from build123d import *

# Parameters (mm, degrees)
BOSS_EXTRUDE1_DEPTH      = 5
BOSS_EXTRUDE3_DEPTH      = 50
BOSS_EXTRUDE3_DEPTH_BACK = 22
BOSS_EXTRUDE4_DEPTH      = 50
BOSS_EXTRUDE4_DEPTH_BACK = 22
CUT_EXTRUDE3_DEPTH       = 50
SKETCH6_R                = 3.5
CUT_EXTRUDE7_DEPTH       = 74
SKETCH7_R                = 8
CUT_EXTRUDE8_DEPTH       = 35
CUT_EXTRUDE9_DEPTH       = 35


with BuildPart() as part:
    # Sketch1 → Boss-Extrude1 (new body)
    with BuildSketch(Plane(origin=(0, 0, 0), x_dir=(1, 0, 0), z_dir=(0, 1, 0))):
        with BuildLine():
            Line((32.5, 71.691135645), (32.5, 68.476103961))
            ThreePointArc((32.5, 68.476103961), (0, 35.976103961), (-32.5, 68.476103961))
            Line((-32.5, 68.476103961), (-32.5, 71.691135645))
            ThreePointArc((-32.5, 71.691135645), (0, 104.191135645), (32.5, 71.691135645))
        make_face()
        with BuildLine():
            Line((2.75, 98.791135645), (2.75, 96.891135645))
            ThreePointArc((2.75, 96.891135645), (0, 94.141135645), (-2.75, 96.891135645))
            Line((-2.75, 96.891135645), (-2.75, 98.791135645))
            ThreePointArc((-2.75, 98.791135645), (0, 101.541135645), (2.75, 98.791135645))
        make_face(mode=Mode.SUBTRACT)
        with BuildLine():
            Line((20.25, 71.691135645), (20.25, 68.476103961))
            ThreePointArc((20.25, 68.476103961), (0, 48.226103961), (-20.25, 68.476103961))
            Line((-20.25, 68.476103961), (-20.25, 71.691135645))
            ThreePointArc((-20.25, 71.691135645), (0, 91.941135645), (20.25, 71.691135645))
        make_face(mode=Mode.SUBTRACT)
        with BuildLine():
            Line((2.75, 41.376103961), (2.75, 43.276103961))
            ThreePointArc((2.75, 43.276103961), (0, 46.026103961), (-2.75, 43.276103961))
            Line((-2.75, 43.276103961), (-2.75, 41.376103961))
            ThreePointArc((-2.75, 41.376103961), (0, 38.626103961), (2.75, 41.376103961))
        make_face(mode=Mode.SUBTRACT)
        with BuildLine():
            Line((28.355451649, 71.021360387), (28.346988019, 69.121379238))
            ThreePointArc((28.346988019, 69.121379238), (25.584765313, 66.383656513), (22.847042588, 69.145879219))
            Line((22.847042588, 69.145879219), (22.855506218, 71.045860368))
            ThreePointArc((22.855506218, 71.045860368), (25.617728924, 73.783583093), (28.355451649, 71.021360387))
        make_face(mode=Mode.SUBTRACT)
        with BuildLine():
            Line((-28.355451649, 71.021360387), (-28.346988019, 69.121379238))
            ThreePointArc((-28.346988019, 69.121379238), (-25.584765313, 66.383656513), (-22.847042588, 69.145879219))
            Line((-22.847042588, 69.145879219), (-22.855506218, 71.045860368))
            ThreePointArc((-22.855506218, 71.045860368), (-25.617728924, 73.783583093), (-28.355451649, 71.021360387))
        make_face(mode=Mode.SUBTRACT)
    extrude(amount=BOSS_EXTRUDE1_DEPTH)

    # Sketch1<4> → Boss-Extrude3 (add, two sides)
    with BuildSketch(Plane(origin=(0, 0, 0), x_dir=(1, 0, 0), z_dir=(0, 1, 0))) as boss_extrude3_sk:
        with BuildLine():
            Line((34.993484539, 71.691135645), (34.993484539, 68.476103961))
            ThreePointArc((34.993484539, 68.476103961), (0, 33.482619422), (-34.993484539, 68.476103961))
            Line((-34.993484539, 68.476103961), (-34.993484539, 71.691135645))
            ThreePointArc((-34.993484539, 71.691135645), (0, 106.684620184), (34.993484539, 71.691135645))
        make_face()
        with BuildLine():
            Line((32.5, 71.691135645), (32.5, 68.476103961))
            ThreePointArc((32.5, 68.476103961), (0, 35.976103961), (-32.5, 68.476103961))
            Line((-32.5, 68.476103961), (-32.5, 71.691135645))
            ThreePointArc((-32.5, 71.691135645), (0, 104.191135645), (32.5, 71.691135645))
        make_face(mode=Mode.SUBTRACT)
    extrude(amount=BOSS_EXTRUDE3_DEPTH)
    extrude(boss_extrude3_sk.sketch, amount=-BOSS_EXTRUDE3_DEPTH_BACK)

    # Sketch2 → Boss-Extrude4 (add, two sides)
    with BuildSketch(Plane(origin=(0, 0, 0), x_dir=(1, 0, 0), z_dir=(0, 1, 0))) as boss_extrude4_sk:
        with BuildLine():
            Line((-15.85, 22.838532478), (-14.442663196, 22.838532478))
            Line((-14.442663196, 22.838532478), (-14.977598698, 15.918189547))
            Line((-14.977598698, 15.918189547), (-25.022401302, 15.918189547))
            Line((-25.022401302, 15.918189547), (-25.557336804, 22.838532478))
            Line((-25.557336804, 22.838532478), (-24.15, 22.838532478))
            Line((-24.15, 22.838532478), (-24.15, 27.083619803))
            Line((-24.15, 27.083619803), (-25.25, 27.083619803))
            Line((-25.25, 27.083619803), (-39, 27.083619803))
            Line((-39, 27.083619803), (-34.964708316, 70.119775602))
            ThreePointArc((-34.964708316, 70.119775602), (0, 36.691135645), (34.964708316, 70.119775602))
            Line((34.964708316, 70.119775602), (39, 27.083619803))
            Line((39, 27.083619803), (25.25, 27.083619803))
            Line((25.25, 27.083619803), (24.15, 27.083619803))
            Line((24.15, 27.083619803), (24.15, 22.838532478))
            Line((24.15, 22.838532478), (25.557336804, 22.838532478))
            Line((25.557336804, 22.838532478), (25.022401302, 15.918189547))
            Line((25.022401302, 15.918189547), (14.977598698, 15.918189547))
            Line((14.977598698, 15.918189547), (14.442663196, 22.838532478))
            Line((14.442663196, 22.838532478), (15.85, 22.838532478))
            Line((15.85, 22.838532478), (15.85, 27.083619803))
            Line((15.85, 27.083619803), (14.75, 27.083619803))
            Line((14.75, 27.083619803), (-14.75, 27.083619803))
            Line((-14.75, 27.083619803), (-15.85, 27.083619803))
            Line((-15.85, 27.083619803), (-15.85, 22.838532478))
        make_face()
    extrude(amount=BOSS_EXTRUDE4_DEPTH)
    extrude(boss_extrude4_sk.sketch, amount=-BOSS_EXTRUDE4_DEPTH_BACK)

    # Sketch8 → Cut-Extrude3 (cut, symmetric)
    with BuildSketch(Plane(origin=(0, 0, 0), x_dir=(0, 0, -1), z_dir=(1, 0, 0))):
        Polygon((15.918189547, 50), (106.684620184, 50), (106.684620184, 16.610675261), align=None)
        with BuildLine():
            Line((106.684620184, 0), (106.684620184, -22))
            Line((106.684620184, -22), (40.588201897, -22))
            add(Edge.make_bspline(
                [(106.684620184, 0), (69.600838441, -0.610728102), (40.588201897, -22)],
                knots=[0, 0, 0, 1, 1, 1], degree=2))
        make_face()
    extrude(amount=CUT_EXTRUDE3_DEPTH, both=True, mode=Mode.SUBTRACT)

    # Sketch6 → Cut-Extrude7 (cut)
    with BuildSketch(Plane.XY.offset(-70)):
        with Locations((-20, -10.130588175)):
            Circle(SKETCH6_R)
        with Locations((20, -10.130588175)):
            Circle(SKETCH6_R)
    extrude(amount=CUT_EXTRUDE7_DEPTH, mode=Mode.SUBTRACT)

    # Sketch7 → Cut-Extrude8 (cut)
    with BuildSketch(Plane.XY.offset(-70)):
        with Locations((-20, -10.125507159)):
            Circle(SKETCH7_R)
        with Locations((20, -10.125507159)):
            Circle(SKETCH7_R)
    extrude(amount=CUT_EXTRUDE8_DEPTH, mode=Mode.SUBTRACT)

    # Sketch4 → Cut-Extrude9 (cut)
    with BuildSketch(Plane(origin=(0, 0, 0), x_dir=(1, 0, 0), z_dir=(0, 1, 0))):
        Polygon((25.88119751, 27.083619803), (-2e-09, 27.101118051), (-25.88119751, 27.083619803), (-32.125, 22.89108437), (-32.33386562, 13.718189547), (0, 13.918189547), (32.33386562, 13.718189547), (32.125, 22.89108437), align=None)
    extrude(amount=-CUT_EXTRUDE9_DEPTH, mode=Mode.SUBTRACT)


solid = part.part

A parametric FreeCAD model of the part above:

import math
import FreeCAD as App
import Part
import Sketcher

V = App.Vector
Q = App.Units.Quantity

doc = App.newDocument("Part")
body = doc.addObject("PartDesign::Body", "Body")

sketch1 = body.newObject("Sketcher::SketchObject", "Sketch")
sketch1.AttachmentSupport = (doc.getObject("XZ_Plane"), [""])
sketch1.MapMode = "FlatFace"
sketch1.addGeometry([
    Part.LineSegment(V(32.5, -68.5, 0), V(32.5, -71.7, 0)),
    Part.ArcOfCircle(Part.Circle(V(0, -71.7, 0), V(0, 0, 1), 32.5), math.radians(180), math.radians(360)),
    Part.LineSegment(V(-32.5, -71.7, 0), V(-32.5, -68.5, 0)),
    Part.ArcOfCircle(Part.Circle(V(0, -68.5, 0), V(0, 0, 1), 32.5), math.radians(0), math.radians(180)),
    Part.ArcOfCircle(Part.Circle(V(0, -41.4, 0), V(0, 0, 1), 2.8), math.radians(0), math.radians(180)),
    Part.LineSegment(V(-2.8, -41.4, 0), V(-2.8, -43.3, 0)),
    Part.ArcOfCircle(Part.Circle(V(0, -43.3, 0), V(0, 0, 1), 2.8), math.radians(180), math.radians(360)),
    Part.LineSegment(V(2.8, -43.3, 0), V(2.8, -41.4, 0)),
    Part.LineSegment(V(28.4, -71, 0), V(28.3, -69.1, 0)),
    Part.ArcOfCircle(Part.Circle(V(25.6, -69.1, 0), V(0, 0, 1), 2.8), math.radians(0), math.radians(180)),
    Part.LineSegment(V(22.8, -69.1, 0), V(22.9, -71, 0)),
    Part.ArcOfCircle(Part.Circle(V(25.6, -71, 0), V(0, 0, 1), 2.8), math.radians(-180), math.radians(0)),
    Part.LineSegment(V(20.2, -71.7, 0), V(20.2, -68.5, 0)),
    Part.ArcOfCircle(Part.Circle(V(0, -68.5, 0), V(0, 0, 1), 20.2), math.radians(0), math.radians(180)),
    Part.LineSegment(V(-20.2, -68.5, 0), V(-20.2, -71.7, 0)),
    Part.ArcOfCircle(Part.Circle(V(0, -71.7, 0), V(0, 0, 1), 20.2), math.radians(180), math.radians(360)),
    Part.ArcOfCircle(Part.Circle(V(-25.6, -71, 0), V(0, 0, 1), 2.8), math.radians(180), math.radians(360)),
    Part.LineSegment(V(-22.9, -71, 0), V(-22.8, -69.1, 0)),
    Part.ArcOfCircle(Part.Circle(V(-25.6, -69.1, 0), V(0, 0, 1), 2.8), math.radians(0), math.radians(180)),
    Part.LineSegment(V(-28.3, -69.1, 0), V(-28.4, -71, 0)),
    Part.LineSegment(V(2.8, -98.8, 0), V(2.8, -96.9, 0)),
    Part.ArcOfCircle(Part.Circle(V(0, -96.9, 0), V(0, 0, 1), 2.8), math.radians(0), math.radians(180)),
    Part.LineSegment(V(-2.8, -96.9, 0), V(-2.8, -98.8, 0)),
    Part.ArcOfCircle(Part.Circle(V(0, -98.8, 0), V(0, 0, 1), 2.8), math.radians(180), math.radians(360)),
], False)
sketch1.addConstraint([
    Sketcher.Constraint("Tangent", 0, 2, 1, 2),
    Sketcher.Constraint("Tangent", 1, 1, 2, 1),
    Sketcher.Constraint("Tangent", 2, 2, 3, 2),
    Sketcher.Constraint("Tangent", 3, 1, 0, 1),
    Sketcher.Constraint("Tangent", 4, 2, 5, 1),
    Sketcher.Constraint("Tangent", 5, 2, 6, 1),
    Sketcher.Constraint("Tangent", 6, 2, 7, 1),
    Sketcher.Constraint("Tangent", 7, 2, 4, 1),
    Sketcher.Constraint("Tangent", 8, 2, 9, 1),
    Sketcher.Constraint("Tangent", 9, 2, 10, 1),
    Sketcher.Constraint("Tangent", 10, 2, 11, 1),
    Sketcher.Constraint("Tangent", 11, 2, 8, 1),
    Sketcher.Constraint("Tangent", 12, 2, 13, 1),
    Sketcher.Constraint("Tangent", 13, 2, 14, 1),
    Sketcher.Constraint("Tangent", 14, 2, 15, 1),
    Sketcher.Constraint("Tangent", 15, 2, 12, 1),
    Sketcher.Constraint("Tangent", 16, 2, 17, 1),
    Sketcher.Constraint("Tangent", 17, 2, 18, 1),
    Sketcher.Constraint("Tangent", 18, 2, 19, 1),
    Sketcher.Constraint("Tangent", 19, 2, 16, 1),
    Sketcher.Constraint("Tangent", 20, 2, 21, 1),
    Sketcher.Constraint("Tangent", 21, 2, 22, 1),
    Sketcher.Constraint("Tangent", 22, 2, 23, 1),
    Sketcher.Constraint("Tangent", 23, 2, 20, 1),
    Sketcher.Constraint("Vertical", 0),
    Sketcher.Constraint("Vertical", 2),
    Sketcher.Constraint("Vertical", 5),
    Sketcher.Constraint("Vertical", 7),
    Sketcher.Constraint("Vertical", 12),
    Sketcher.Constraint("Vertical", 14),
    Sketcher.Constraint("Vertical", 20),
    Sketcher.Constraint("Vertical", 22),
    Sketcher.Constraint("Coincident", 13, 3, 3, 3),
    Sketcher.Constraint("Equal", 6, 9),
    Sketcher.Constraint("Equal", 9, 11),
    Sketcher.Constraint("Equal", 11, 16),
    Sketcher.Constraint("Equal", 16, 18),
    Sketcher.Constraint("Equal", 18, 21),
    Sketcher.Constraint("Symmetric", 11, 3, 16, 3, -2),
    Sketcher.Constraint("Symmetric", 9, 3, 18, 3, -2),
    Sketcher.Constraint("PointOnObject", 1, 3, -2),
    Sketcher.Constraint("PointOnObject", 4, 3, -2),
    Sketcher.Constraint("PointOnObject", 21, 3, -2),
    Sketcher.Constraint("Horizontal", 15, 3, 0, 2),
    Sketcher.Constraint("Equal", 7, 20),
    Sketcher.Constraint("Radius", 1, Q("32.5 mm")),
    Sketcher.Constraint("Radius", 4, Q("2.75 mm")),
    Sketcher.Constraint("Radius", 13, Q("20.25 mm")),
    Sketcher.Constraint("DistanceY", 5, 2, 5, 1, Q("1.9 mm")),
    Sketcher.Constraint("Distance", 8, Q("1.9 mm")),
    Sketcher.Constraint("DistanceY", 3, 3, 4, 3, Q("27.1 mm")),
    Sketcher.Constraint("DistanceY", 21, 3, 1, 3, Q("25.2 mm")),
    Sketcher.Constraint("DistanceY", 0, 2, 0, 1, Q("3.215032 mm")),
    Sketcher.Constraint("DistanceY", 9, 2, 8, 2, Q("0.0245 mm")),
    Sketcher.Constraint("DistanceY", 9, 3, -1, 1, Q("69.133629 mm")),
    Sketcher.Constraint("DistanceX", -1, 1, 11, 3, Q("25.605479 mm")),
    Sketcher.Constraint("DistanceY", 1, 3, -1, 1, Q("71.691136 mm")),
])
pad1 = body.newObject("PartDesign::Pad", "Pad")
pad1.Profile = sketch1
pad1.Length = 5
pad1.Reversed = True

sketch2 = body.newObject("Sketcher::SketchObject", "Sketch001")
sketch2.AttachmentSupport = (doc.getObject("XZ_Plane"), [""])
sketch2.MapMode = "FlatFace"
sketch2.addGeometry([
    Part.LineSegment(V(35, -68.5, 0), V(35, -71.7, 0)),
    Part.ArcOfCircle(Part.Circle(V(0, -71.7, 0), V(0, 0, 1), 35), math.radians(180), math.radians(360)),
    Part.LineSegment(V(-35, -71.7, 0), V(-35, -68.5, 0)),
    Part.ArcOfCircle(Part.Circle(V(0, -68.5, 0), V(0, 0, 1), 35), math.radians(0), math.radians(180)),
    Part.LineSegment(V(32.5, -71.7, 0), V(32.5, -68.5, 0)),
    Part.ArcOfCircle(Part.Circle(V(0, -68.5, 0), V(0, 0, 1), 32.5), math.radians(0), math.radians(180)),
    Part.LineSegment(V(-32.5, -68.5, 0), V(-32.5, -71.7, 0)),
    Part.ArcOfCircle(Part.Circle(V(0, -71.7, 0), V(0, 0, 1), 32.5), math.radians(180), math.radians(360)),
], False)
sketch2.addConstraint([
    Sketcher.Constraint("Tangent", 0, 2, 1, 2),
    Sketcher.Constraint("Tangent", 1, 1, 2, 1),
    Sketcher.Constraint("Tangent", 2, 2, 3, 2),
    Sketcher.Constraint("Tangent", 3, 1, 0, 1),
    Sketcher.Constraint("Tangent", 4, 2, 5, 1),
    Sketcher.Constraint("Tangent", 5, 2, 6, 1),
    Sketcher.Constraint("Tangent", 6, 2, 7, 1),
    Sketcher.Constraint("Tangent", 7, 2, 4, 1),
    Sketcher.Constraint("Vertical", 0),
    Sketcher.Constraint("Vertical", 2),
    Sketcher.Constraint("Vertical", 4),
    Sketcher.Constraint("Vertical", 6),
    Sketcher.Constraint("Coincident", 5, 3, 3, 3),
    Sketcher.Constraint("PointOnObject", 1, 3, -2),
    Sketcher.Constraint("Horizontal", 7, 3, 0, 2),
    Sketcher.Constraint("Radius", 5, Q("32.5 mm")),
    Sketcher.Constraint("Radius", 1, Q("34.993485 mm")),
    Sketcher.Constraint("DistanceY", 0, 2, 0, 1, Q("3.215032 mm")),
    Sketcher.Constraint("DistanceY", 1, 3, -1, 1, Q("71.691136 mm")),
])
pad2 = body.newObject("PartDesign::Pad", "Pad001")
pad2.Profile = sketch2
pad2.Type = "TwoLengths"
pad2.Length = 50
pad2.Length2 = 22
pad2.Reversed = True

sketch3 = body.newObject("Sketcher::SketchObject", "Sketch002")
sketch3.AttachmentSupport = (doc.getObject("XZ_Plane"), [""])
sketch3.MapMode = "FlatFace"
sketch3.addGeometry([
    Part.LineSegment(V(-14.4, -22.8, 0), V(-15.8, -22.8, 0)),
    Part.LineSegment(V(-15.8, -22.8, 0), V(-15.8, -27.1, 0)),
    Part.LineSegment(V(-15.8, -27.1, 0), V(15.8, -27.1, 0)),
    Part.LineSegment(V(15.8, -27.1, 0), V(15.8, -22.8, 0)),
    Part.LineSegment(V(15.8, -22.8, 0), V(14.4, -22.8, 0)),
    Part.LineSegment(V(14.4, -22.8, 0), V(15, -15.9, 0)),
    Part.LineSegment(V(15, -15.9, 0), V(25, -15.9, 0)),
    Part.LineSegment(V(25, -15.9, 0), V(25.6, -22.8, 0)),
    Part.LineSegment(V(25.6, -22.8, 0), V(24.1, -22.8, 0)),
    Part.LineSegment(V(24.1, -22.8, 0), V(24.1, -27.1, 0)),
    Part.LineSegment(V(24.1, -27.1, 0), V(39, -27.1, 0)),
    Part.LineSegment(V(39, -27.1, 0), V(35, -70.1, 0)),
    Part.ArcOfCircle(Part.Circle(V(0, -71.7, 0), V(0, 0, 1), 35), math.radians(3), math.radians(177)),
    Part.LineSegment(V(-35, -70.1, 0), V(-39, -27.1, 0)),
    Part.LineSegment(V(-39, -27.1, 0), V(-24.1, -27.1, 0)),
    Part.LineSegment(V(-24.1, -27.1, 0), V(-24.1, -22.8, 0)),
    Part.LineSegment(V(-24.1, -22.8, 0), V(-25.6, -22.8, 0)),
    Part.LineSegment(V(-25.6, -22.8, 0), V(-25, -15.9, 0)),
    Part.LineSegment(V(-25, -15.9, 0), V(-15, -15.9, 0)),
    Part.LineSegment(V(-15, -15.9, 0), V(-14.4, -22.8, 0)),
], False)
sketch3.addConstraint([
    Sketcher.Constraint("Coincident", 0, 2, 1, 1),
    Sketcher.Constraint("Coincident", 1, 2, 2, 1),
    Sketcher.Constraint("Coincident", 2, 2, 3, 1),
    Sketcher.Constraint("Coincident", 3, 2, 4, 1),
    Sketcher.Constraint("Coincident", 4, 2, 5, 1),
    Sketcher.Constraint("Coincident", 5, 2, 6, 1),
    Sketcher.Constraint("Coincident", 6, 2, 7, 1),
    Sketcher.Constraint("Coincident", 7, 2, 8, 1),
    Sketcher.Constraint("Coincident", 8, 2, 9, 1),
    Sketcher.Constraint("Coincident", 9, 2, 10, 1),
    Sketcher.Constraint("Coincident", 10, 2, 11, 1),
    Sketcher.Constraint("Coincident", 11, 2, 12, 1),
    Sketcher.Constraint("Coincident", 12, 2, 13, 1),
    Sketcher.Constraint("Coincident", 13, 2, 14, 1),
    Sketcher.Constraint("Coincident", 14, 2, 15, 1),
    Sketcher.Constraint("Coincident", 15, 2, 16, 1),
    Sketcher.Constraint("Coincident", 16, 2, 17, 1),
    Sketcher.Constraint("Coincident", 17, 2, 18, 1),
    Sketcher.Constraint("Coincident", 18, 2, 19, 1),
    Sketcher.Constraint("Coincident", 19, 2, 0, 1),
    Sketcher.Constraint("Horizontal", 0),
    Sketcher.Constraint("Vertical", 1),
    Sketcher.Constraint("Horizontal", 2),
    Sketcher.Constraint("Vertical", 3),
    Sketcher.Constraint("Horizontal", 4),
    Sketcher.Constraint("Horizontal", 6),
    Sketcher.Constraint("Horizontal", 8),
    Sketcher.Constraint("Vertical", 9),
    Sketcher.Constraint("Horizontal", 10),
    Sketcher.Constraint("Horizontal", 14),
    Sketcher.Constraint("Vertical", 15),
    Sketcher.Constraint("Horizontal", 16),
    Sketcher.Constraint("Horizontal", 18),
    Sketcher.Constraint("Symmetric", 0, 2, 3, 2, -2),
    Sketcher.Constraint("Symmetric", 11, 2, 12, 2, -2),
    Sketcher.Constraint("Symmetric", 10, 2, 13, 2, -2),
    Sketcher.Constraint("Symmetric", 8, 2, 15, 2, -2),
    Sketcher.Constraint("Symmetric", 6, 2, 17, 2, -2),
    Sketcher.Constraint("Parallel", 5, 17),
    Sketcher.Constraint("Parallel", 7, 19),
    Sketcher.Constraint("Horizontal", 4, 2, 7, 2),
    Sketcher.Constraint("Horizontal", 2, 2, 9, 2),
    Sketcher.Constraint("Equal", 0, 4),
    Sketcher.Constraint("Equal", 4, 8),
    Sketcher.Constraint("Equal", 8, 16),
    Sketcher.Constraint("Radius", 12, Q("35 mm")),
    Sketcher.Constraint("DistanceX", 2, 1, 2, 2, Q("31.7 mm")),
    Sketcher.Constraint("DistanceX", -1, 1, 10, 2, Q("39 mm")),
    Sketcher.Constraint("DistanceX", 14, 2, 2, 2, Q("40 mm")),
    Sketcher.Constraint("DistanceX", -1, 1, 5, 2, Q("14.977599 mm")),
    Sketcher.Constraint("DistanceX", 0, 2, 0, 1, Q("1.407337 mm")),
    Sketcher.Constraint("DistanceY", 1, 2, 1, 1, Q("4.245087 mm")),
    Sketcher.Constraint("DistanceY", 1, 2, -1, 1, Q("27.08362 mm")),
    Sketcher.Constraint("DistanceY", 5, 2, -1, 1, Q("15.91819 mm")),
    Sketcher.Constraint("DistanceX", -1, 1, 11, 2, Q("34.964708 mm")),
    Sketcher.Constraint("Distance", 11, Q("43.224927 mm")),
])
pad3 = body.newObject("PartDesign::Pad", "Pad002")
pad3.Profile = sketch3
pad3.Type = "TwoLengths"
pad3.Length = 50
pad3.Length2 = 22
pad3.Reversed = True

sketch4 = body.newObject("Sketcher::SketchObject", "Sketch003")
sketch4.AttachmentSupport = (doc.getObject("YZ_Plane"), [""])
sketch4.MapMode = "FlatFace"
sketch4.addGeometry([
    Part.LineSegment(V(50, -106.68462, 0), V(50, -15.91819, 0)),
    Part.LineSegment(V(50, -15.91819, 0), V(16.610675, -106.68462, 0)),
    Part.LineSegment(V(16.610675, -106.68462, 0), V(50, -106.68462, 0)),
    Part.LineSegment(V(-22, -106.68462, 0), V(0, -106.68462, 0)),
    Part.BSplineCurve([V(0, -106.68462, 0), V(-0.610728, -69.600838, 0), V(-22, -40.588202, 0)], [3, 3], [0, 1], False, 2, [1, 1, 1], False),
    Part.LineSegment(V(-22, -40.588202, 0), V(-22, -106.68462, 0)),
], False)
sketch4.addConstraint([
    Sketcher.Constraint("Block", 4),
    Sketcher.Constraint("Coincident", 0, 2, 1, 1),
    Sketcher.Constraint("Coincident", 1, 2, 2, 1),
    Sketcher.Constraint("Coincident", 2, 2, 0, 1),
    Sketcher.Constraint("Coincident", 3, 2, 4, 1),
    Sketcher.Constraint("Coincident", 4, 2, 5, 1),
    Sketcher.Constraint("Coincident", 5, 2, 3, 1),
    Sketcher.Constraint("Vertical", 0),
    Sketcher.Constraint("Horizontal", 2),
    Sketcher.Constraint("Horizontal", 3),
    Sketcher.Constraint("Vertical", 5),
    Sketcher.Constraint("Horizontal", 2, 2, 3, 2),
    Sketcher.Constraint("DistanceX", -1, 1, 0, 2, Q("50 mm")),
    Sketcher.Constraint("DistanceY", 0, 1, 0, 2, Q("90.766431 mm")),
    Sketcher.Constraint("DistanceX", 2, 1, 2, 2, Q("33.389325 mm")),
])
pocket1 = body.newObject("PartDesign::Pocket", "Pocket")
pocket1.Profile = sketch4
pocket1.Length = 100
pocket1.Midplane = True

sketch5 = body.newObject("Sketcher::SketchObject", "Sketch004")
sketch5.AttachmentSupport = (doc.getObject("XY_Plane"), [""])
sketch5.MapMode = "FlatFace"
sketch5.AttachmentOffset = App.Placement(V(0, 0, -70), App.Rotation())
sketch5.addGeometry([
    Part.Circle(V(-20, -10.1, 0), V(0, 0, 1), 3.5),
    Part.Circle(V(20, -10.1, 0), V(0, 0, 1), 3.5),
], False)
sketch5.addConstraint([
    Sketcher.Constraint("Equal", 0, 1),
    Sketcher.Constraint("Symmetric", 0, 3, 1, 3, -2),
    Sketcher.Constraint("Diameter", 0, Q("7 mm")),
    Sketcher.Constraint("DistanceX", 0, 3, -1, 1, Q("20 mm")),
    Sketcher.Constraint("DistanceY", 0, 3, -1, 1, Q("10.130588 mm")),
])
pocket2 = body.newObject("PartDesign::Pocket", "Pocket001")
pocket2.Profile = sketch5
pocket2.Length = 74
pocket2.Reversed = True

sketch6 = body.newObject("Sketcher::SketchObject", "Sketch005")
sketch6.AttachmentSupport = (doc.getObject("XY_Plane"), [""])
sketch6.MapMode = "FlatFace"
sketch6.AttachmentOffset = App.Placement(V(0, 0, -70), App.Rotation())
sketch6.addGeometry([
    Part.Circle(V(-20, -10, 0), V(0, 0, 1), 8),
    Part.Circle(V(20, -10, 0), V(0, 0, 1), 8),
], False)
sketch6.addConstraint([
    Sketcher.Constraint("Equal", 0, 1),
    Sketcher.Constraint("Symmetric", 0, 3, 1, 3, -2),
    Sketcher.Constraint("Diameter", 0, Q("16 mm")),
    Sketcher.Constraint("DistanceX", 0, 3, -1, 1, Q("20 mm")),
    Sketcher.Constraint("DistanceY", 0, 3, -1, 1, Q("10.125507 mm")),
])
pocket3 = body.newObject("PartDesign::Pocket", "Pocket002")
pocket3.Profile = sketch6
pocket3.Length = 35
pocket3.Reversed = True

sketch7 = body.newObject("Sketcher::SketchObject", "Sketch006")
sketch7.AttachmentSupport = (doc.getObject("XZ_Plane"), [""])
sketch7.MapMode = "FlatFace"
sketch7.addGeometry([
    Part.LineSegment(V(26, -27, 0), V(0, -27, 0)),
    Part.LineSegment(V(0, -27, 0), V(-26, -27, 0)),
    Part.LineSegment(V(-26, -27, 0), V(-32, -23, 0)),
    Part.LineSegment(V(-32, -23, 0), V(-32, -14, 0)),
    Part.LineSegment(V(-32, -14, 0), V(0, -14, 0)),
    Part.LineSegment(V(0, -14, 0), V(32, -14, 0)),
    Part.LineSegment(V(32, -14, 0), V(32, -23, 0)),
    Part.LineSegment(V(32, -23, 0), V(26, -27, 0)),
], False)
sketch7.addConstraint([
    Sketcher.Constraint("Coincident", 0, 2, 1, 1),
    Sketcher.Constraint("Coincident", 1, 2, 2, 1),
    Sketcher.Constraint("Coincident", 2, 2, 3, 1),
    Sketcher.Constraint("Coincident", 3, 2, 4, 1),
    Sketcher.Constraint("Coincident", 4, 2, 5, 1),
    Sketcher.Constraint("Coincident", 5, 2, 6, 1),
    Sketcher.Constraint("Coincident", 6, 2, 7, 1),
    Sketcher.Constraint("Coincident", 7, 2, 0, 1),
    Sketcher.Constraint("Symmetric", 3, 2, 5, 2, -2),
    Sketcher.Constraint("Symmetric", 2, 2, 6, 2, -2),
    Sketcher.Constraint("Symmetric", 1, 2, 7, 2, -2),
    Sketcher.Constraint("PointOnObject", 0, 2, -2),
    Sketcher.Constraint("PointOnObject", 4, 2, -2),
    Sketcher.Constraint("DistanceY", 4, 2, 3, 2, Q("0.2 mm")),
    Sketcher.Constraint("DistanceX", 2, 2, 6, 2, Q("64.25 mm")),
    Sketcher.Constraint("Distance", 2, Q("7.520799 mm")),
    Sketcher.Constraint("DistanceY", 0, 2, 1, 2, Q("0.017498 mm")),
    Sketcher.Constraint("DistanceY", 0, 2, -1, 1, Q("27.101118 mm")),
    Sketcher.Constraint("DistanceY", 3, 2, -1, 1, Q("13.71819 mm")),
    Sketcher.Constraint("DistanceX", 3, 2, 1, 2, Q("6.452668 mm")),
    Sketcher.Constraint("DistanceX", 3, 2, 5, 2, Q("64.667731 mm")),
])
pocket4 = body.newObject("PartDesign::Pocket", "Pocket003")
pocket4.Profile = sketch7
pocket4.Length = 35
pocket4.Reversed = True

doc.recompute()
